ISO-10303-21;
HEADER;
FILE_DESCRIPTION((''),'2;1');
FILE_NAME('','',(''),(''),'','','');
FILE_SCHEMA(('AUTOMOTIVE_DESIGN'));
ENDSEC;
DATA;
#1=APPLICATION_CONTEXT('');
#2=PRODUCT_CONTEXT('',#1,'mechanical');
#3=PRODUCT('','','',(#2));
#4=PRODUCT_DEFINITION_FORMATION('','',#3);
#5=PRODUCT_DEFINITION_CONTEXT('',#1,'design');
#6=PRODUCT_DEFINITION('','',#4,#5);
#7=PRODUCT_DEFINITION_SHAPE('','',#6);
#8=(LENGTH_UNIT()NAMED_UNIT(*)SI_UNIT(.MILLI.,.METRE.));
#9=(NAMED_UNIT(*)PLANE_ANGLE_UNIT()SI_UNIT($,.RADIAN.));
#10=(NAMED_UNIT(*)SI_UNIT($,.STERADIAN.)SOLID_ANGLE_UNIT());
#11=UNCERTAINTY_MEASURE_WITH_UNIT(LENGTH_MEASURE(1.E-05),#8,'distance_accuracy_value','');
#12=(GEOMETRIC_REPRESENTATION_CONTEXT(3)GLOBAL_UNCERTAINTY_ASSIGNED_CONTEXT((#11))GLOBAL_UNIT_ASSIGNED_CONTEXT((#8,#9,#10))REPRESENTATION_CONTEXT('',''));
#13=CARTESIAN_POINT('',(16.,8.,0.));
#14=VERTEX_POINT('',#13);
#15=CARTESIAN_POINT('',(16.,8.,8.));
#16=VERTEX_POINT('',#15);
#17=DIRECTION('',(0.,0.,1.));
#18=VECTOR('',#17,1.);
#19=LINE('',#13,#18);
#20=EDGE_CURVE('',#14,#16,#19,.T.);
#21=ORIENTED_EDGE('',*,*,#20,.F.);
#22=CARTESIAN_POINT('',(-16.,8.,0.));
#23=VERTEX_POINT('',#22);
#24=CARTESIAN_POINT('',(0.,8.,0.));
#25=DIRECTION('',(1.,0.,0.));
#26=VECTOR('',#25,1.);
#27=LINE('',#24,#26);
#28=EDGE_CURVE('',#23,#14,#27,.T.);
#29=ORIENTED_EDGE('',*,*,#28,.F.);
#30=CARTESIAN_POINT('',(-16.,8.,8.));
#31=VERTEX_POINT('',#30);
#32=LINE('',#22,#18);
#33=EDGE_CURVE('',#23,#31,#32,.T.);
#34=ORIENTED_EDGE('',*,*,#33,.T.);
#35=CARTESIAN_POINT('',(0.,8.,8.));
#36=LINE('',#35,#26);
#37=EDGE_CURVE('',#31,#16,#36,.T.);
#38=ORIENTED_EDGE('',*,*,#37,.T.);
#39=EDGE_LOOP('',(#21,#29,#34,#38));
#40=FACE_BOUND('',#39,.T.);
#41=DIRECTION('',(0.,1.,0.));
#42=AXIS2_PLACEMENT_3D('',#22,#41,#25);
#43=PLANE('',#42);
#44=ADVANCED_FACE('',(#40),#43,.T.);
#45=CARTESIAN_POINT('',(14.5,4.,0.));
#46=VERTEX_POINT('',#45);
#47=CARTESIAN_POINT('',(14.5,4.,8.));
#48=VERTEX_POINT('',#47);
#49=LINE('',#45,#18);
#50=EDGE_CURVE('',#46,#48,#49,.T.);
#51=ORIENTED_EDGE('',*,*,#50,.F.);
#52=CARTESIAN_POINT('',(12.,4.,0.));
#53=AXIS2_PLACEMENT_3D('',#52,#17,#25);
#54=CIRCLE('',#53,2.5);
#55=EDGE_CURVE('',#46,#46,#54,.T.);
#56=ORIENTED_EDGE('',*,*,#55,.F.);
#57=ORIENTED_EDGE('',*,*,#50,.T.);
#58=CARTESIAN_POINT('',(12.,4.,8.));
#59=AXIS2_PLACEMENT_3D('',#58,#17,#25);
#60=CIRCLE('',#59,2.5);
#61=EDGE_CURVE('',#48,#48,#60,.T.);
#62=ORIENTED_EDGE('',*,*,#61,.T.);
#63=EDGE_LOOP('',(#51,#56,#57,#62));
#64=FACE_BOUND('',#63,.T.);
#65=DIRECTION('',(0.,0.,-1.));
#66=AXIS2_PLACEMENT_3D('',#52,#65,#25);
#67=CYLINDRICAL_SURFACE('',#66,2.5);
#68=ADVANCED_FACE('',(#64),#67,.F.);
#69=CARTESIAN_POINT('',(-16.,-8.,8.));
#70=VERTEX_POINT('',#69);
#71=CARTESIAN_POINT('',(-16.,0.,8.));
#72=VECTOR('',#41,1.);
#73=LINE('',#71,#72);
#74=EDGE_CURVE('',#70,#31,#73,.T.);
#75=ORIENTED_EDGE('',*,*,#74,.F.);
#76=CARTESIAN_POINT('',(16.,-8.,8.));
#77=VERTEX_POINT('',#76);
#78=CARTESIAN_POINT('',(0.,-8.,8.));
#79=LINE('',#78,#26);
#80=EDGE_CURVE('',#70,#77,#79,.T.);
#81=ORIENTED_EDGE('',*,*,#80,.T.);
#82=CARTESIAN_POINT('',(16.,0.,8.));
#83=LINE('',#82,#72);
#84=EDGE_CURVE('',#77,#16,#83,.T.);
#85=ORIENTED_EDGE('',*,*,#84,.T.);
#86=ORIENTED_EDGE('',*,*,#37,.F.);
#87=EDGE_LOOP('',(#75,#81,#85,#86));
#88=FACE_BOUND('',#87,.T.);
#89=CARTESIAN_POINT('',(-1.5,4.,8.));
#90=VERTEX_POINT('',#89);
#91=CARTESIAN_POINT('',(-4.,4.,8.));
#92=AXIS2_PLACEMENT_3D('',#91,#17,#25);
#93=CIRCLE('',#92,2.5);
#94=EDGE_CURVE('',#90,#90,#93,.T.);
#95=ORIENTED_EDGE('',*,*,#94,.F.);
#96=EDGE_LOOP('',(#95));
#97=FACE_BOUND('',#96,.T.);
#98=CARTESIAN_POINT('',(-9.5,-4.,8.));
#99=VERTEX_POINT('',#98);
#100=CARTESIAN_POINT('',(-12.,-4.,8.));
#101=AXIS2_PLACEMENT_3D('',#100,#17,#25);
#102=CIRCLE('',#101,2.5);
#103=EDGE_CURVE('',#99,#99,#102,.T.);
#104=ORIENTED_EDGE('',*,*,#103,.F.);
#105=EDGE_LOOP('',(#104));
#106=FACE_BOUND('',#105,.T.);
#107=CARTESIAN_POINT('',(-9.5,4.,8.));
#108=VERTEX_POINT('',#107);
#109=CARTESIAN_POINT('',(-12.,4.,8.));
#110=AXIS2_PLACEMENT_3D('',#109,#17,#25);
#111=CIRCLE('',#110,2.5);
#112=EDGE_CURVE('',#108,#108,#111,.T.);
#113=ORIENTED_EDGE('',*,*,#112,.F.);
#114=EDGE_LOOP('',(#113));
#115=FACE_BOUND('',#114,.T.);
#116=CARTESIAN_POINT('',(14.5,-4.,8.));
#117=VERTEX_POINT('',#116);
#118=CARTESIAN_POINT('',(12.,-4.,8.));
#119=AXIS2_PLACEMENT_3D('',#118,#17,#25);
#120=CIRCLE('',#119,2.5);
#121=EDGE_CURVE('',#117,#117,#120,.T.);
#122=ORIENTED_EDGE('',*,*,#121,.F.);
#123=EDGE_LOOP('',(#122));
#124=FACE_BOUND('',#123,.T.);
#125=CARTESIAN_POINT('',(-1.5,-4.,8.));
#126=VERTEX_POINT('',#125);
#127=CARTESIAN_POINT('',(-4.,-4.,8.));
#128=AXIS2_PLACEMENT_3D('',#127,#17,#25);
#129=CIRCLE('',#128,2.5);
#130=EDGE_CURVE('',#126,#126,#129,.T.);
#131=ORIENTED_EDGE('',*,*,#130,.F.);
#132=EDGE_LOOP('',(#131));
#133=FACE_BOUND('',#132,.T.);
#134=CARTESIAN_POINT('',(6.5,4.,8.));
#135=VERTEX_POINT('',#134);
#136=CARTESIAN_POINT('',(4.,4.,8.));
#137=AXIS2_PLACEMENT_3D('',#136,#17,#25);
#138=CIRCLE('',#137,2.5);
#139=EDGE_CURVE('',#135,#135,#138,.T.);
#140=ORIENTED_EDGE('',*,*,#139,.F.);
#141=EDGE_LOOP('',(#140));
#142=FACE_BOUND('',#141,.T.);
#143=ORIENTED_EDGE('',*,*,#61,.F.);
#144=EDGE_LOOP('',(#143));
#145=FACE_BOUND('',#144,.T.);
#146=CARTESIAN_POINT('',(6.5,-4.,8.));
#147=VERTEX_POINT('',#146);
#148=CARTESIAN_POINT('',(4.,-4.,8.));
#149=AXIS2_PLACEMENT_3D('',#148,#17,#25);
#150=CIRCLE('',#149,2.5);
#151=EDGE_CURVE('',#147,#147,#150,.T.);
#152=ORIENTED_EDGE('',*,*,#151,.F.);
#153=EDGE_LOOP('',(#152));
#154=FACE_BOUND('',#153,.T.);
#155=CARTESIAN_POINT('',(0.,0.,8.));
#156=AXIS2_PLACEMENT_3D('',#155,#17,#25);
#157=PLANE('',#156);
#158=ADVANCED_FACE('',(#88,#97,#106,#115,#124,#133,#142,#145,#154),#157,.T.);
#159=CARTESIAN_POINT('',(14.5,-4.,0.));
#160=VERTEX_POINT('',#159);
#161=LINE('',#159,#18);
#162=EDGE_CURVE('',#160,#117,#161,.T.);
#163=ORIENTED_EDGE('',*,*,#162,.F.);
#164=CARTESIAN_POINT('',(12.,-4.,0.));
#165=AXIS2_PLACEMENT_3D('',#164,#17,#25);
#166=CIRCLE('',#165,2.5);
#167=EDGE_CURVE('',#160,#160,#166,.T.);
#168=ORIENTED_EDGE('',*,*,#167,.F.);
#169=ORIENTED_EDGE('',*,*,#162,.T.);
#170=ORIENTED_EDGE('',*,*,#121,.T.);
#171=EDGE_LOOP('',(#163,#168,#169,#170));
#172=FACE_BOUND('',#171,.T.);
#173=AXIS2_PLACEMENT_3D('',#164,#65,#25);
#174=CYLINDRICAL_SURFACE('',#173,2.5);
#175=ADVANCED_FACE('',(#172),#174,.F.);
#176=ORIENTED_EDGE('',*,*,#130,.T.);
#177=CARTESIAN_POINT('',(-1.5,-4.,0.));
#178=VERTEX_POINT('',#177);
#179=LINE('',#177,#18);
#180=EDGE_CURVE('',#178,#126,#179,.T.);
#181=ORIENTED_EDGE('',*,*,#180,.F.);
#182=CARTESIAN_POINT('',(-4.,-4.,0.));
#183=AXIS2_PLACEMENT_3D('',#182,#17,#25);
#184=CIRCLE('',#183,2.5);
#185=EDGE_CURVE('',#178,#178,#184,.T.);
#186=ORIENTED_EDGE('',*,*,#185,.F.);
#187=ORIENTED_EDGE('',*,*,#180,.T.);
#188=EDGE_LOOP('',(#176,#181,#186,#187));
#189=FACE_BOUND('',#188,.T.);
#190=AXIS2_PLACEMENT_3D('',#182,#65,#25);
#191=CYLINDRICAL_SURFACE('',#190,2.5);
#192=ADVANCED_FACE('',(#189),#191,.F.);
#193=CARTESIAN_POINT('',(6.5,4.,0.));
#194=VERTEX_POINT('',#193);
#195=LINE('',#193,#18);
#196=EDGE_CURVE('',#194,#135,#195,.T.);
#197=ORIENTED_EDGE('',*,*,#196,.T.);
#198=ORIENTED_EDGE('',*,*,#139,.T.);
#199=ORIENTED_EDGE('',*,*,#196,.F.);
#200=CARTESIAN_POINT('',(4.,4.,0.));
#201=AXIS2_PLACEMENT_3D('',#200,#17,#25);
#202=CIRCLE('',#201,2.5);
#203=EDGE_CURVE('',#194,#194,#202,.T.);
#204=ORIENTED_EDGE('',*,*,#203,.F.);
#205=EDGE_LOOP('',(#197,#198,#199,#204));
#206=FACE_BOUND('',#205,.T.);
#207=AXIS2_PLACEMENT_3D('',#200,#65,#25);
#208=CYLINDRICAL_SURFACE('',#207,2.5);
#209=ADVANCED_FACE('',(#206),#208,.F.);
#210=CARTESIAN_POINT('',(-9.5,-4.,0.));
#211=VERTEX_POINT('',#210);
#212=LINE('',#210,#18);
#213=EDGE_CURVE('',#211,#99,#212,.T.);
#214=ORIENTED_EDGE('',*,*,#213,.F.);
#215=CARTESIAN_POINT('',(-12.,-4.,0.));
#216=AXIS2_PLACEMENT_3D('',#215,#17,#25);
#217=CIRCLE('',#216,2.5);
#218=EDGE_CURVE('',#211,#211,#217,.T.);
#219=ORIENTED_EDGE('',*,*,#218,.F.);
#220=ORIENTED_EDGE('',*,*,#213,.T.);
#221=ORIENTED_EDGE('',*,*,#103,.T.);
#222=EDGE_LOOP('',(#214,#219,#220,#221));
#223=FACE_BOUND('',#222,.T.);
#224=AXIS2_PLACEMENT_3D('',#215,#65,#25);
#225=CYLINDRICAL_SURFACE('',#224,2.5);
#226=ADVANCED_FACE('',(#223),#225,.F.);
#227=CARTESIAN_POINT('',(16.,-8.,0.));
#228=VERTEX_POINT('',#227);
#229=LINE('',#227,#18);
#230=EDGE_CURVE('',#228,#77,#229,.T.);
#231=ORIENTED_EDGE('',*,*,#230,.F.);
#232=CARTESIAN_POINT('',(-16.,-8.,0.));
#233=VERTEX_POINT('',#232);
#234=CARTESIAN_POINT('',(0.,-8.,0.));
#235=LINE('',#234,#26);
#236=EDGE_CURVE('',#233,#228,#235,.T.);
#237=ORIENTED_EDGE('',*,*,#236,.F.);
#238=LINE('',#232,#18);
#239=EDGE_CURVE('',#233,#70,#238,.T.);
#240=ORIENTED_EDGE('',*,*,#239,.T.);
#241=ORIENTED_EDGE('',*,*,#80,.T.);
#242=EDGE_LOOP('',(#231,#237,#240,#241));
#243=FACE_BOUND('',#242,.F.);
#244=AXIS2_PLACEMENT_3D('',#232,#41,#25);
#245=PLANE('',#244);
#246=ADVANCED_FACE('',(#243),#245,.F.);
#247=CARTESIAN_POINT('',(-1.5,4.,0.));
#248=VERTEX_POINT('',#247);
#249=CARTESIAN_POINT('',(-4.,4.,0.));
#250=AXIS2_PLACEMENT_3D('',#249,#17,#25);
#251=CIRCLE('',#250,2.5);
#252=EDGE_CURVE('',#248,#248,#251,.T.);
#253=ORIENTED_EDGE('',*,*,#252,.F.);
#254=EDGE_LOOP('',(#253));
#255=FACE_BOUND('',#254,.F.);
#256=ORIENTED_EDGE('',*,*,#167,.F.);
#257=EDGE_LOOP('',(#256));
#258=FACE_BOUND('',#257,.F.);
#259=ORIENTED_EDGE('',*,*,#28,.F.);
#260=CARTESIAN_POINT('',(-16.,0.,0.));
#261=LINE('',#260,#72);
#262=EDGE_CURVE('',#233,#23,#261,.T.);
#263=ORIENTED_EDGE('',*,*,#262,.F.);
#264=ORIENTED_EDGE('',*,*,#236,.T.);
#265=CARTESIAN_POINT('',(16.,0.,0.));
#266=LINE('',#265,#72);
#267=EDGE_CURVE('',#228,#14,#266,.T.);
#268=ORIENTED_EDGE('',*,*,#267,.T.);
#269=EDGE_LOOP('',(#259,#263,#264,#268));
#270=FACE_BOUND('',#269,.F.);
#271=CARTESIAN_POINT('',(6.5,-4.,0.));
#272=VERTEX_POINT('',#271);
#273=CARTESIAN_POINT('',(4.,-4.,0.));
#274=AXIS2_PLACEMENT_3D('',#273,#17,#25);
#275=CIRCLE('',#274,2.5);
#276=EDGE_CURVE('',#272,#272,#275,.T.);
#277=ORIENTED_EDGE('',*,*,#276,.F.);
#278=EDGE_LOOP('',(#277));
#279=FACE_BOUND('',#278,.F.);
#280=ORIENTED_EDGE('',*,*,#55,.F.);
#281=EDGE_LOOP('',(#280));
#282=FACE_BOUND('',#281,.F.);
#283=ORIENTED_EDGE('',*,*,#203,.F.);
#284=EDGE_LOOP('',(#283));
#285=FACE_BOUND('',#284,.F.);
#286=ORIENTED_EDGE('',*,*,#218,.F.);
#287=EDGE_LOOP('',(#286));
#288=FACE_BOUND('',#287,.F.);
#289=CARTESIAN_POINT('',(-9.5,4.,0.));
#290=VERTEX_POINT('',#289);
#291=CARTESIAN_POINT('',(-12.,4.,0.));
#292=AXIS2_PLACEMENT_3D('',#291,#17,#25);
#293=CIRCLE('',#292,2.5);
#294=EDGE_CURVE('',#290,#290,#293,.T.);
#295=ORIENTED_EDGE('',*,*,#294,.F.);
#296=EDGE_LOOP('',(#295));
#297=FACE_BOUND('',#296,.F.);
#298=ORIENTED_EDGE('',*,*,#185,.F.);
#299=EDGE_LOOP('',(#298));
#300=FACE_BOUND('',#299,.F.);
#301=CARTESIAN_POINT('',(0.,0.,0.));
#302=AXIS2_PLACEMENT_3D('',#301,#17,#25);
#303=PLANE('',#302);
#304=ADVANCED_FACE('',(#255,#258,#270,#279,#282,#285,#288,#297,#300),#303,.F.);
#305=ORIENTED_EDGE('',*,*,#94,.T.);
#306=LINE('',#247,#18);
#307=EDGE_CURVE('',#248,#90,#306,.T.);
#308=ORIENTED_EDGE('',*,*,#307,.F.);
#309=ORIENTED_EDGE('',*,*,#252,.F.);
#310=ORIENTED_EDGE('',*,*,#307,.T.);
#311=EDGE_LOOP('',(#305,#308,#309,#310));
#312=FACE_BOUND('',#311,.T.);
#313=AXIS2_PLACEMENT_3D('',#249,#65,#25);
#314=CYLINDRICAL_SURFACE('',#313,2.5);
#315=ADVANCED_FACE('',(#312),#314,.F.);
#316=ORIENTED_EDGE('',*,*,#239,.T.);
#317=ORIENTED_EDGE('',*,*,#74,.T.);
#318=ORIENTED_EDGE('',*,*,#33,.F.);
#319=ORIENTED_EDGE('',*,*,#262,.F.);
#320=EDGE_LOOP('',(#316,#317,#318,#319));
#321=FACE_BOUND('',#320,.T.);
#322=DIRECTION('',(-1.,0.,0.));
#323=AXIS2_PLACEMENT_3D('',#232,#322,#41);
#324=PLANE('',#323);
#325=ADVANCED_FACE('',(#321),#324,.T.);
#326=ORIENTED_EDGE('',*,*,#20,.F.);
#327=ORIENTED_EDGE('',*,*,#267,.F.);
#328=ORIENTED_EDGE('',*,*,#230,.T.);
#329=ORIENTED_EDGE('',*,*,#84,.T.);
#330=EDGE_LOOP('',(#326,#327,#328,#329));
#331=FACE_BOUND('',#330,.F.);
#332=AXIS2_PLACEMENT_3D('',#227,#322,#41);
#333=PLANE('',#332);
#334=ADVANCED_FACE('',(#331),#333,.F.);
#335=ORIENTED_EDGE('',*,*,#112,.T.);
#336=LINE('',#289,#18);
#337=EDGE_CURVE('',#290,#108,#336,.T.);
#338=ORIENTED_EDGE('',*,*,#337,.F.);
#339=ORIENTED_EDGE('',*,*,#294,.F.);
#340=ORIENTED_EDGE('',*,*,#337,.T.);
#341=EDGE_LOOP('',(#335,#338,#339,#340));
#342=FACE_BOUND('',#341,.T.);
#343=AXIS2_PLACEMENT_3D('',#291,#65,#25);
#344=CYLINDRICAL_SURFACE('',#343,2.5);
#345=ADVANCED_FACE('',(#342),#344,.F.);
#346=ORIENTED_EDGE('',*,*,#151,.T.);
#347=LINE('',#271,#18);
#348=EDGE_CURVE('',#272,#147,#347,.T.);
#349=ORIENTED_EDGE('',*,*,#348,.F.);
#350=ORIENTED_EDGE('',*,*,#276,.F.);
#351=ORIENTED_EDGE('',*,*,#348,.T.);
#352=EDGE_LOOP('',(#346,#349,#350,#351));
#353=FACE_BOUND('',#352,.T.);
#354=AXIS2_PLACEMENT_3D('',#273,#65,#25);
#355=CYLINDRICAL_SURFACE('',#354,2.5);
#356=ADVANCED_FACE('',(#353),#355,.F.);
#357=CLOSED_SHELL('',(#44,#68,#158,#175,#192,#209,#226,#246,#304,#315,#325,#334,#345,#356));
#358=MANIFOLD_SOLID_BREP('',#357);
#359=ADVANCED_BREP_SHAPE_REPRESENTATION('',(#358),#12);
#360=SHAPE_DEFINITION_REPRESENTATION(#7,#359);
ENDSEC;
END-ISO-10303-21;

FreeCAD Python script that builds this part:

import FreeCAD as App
import Part
import Sketcher
Q = App.Units.Quantity


def add_polygon(sketch, points):
    """Adds a closed chain of lines whose ends are joined by coincident constraints."""
    first, n = sketch.GeometryCount, len(points)
    for a, b in zip(points, points[1:] + points[:1]):
        sketch.addGeometry(Part.LineSegment(App.Vector(*a, 0), App.Vector(*b, 0)), False)
    for i in range(n):
        sketch.addConstraint(Sketcher.Constraint("Coincident", first + i, 2, first + (i + 1) % n, 1))

doc = App.newDocument("Part")
body = doc.addObject("PartDesign::Body", "Body")

# Sketch on XY plane
sketch1 = doc.addObject("Sketcher::SketchObject", "Sketch")
body.addObject(sketch1)
sketch1.AttachmentSupport = (doc.XY_Plane, [""])
sketch1.MapMode = "FlatFace"
add_polygon(sketch1, [(-16, 8), (-16, -8), (16, -8), (16, 8)])  # lines 0-3
sketch1.addGeometry(Part.Circle(App.Vector(-12, -4, 0), App.Vector(0, 0, 1), 2.5), False)  # 4
sketch1.addGeometry(Part.Circle(App.Vector(-4, -4, 0), App.Vector(0, 0, 1), 2.5), False)  # 5
sketch1.addGeometry(Part.Circle(App.Vector(4, -4, 0), App.Vector(0, 0, 1), 2.5), False)  # 6
sketch1.addGeometry(Part.Circle(App.Vector(12, -4, 0), App.Vector(0, 0, 1), 2.5), False)  # 7
sketch1.addGeometry(Part.Circle(App.Vector(-12, 4, 0), App.Vector(0, 0, 1), 2.5), False)  # 8
sketch1.addGeometry(Part.Circle(App.Vector(-4, 4, 0), App.Vector(0, 0, 1), 2.5), False)  # 9
sketch1.addGeometry(Part.Circle(App.Vector(4, 4, 0), App.Vector(0, 0, 1), 2.5), False)  # 10
sketch1.addGeometry(Part.Circle(App.Vector(12, 4, 0), App.Vector(0, 0, 1), 2.5), False)  # 11
sketch1.addConstraint([
    Sketcher.Constraint("Vertical", 0),
    Sketcher.Constraint("Horizontal", 1),
    Sketcher.Constraint("Vertical", 2),
    Sketcher.Constraint("Horizontal", 3),
    Sketcher.Constraint("Equal", 4, 5),
    Sketcher.Constraint("Equal", 5, 6),
    Sketcher.Constraint("Equal", 6, 7),
    Sketcher.Constraint("Equal", 7, 8),
    Sketcher.Constraint("Equal", 8, 9),
    Sketcher.Constraint("Equal", 9, 10),
    Sketcher.Constraint("Equal", 10, 11),
    Sketcher.Constraint("Symmetric", 7, 3, 8, 3, -1, 1),
    Sketcher.Constraint("Symmetric", 6, 3, 9, 3, -1, 1),
    Sketcher.Constraint("Symmetric", 5, 3, 10, 3, -1, 1),
    Sketcher.Constraint("Symmetric", 4, 3, 11, 3, -1, 1),
    Sketcher.Constraint("Symmetric", 0, 2, 2, 2, -1, 1),
    Sketcher.Constraint("Symmetric", 5, 3, 6, 3, -2),
    Sketcher.Constraint("Symmetric", 4, 3, 7, 3, -2),
    Sketcher.Constraint("Horizontal", 4, 3, 5, 3),
    Sketcher.Constraint("Diameter", 4, Q("5 mm")),
    Sketcher.Constraint("DistanceX", 1, 1, 1, 2, Q("32 mm")),
    Sketcher.Constraint("DistanceY", 0, 2, 0, 1, Q("16 mm")),
    Sketcher.Constraint("DistanceX", 4, 3, -1, 1, Q("12 mm")),
    Sketcher.Constraint("DistanceY", 4, 3, -1, 1, Q("4 mm")),
    Sketcher.Constraint("DistanceX", 5, 3, -1, 1, Q("4 mm")),
])
pad1 = doc.addObject("PartDesign::Pad", "Pad")
body.addObject(pad1)
pad1.Profile = sketch1
pad1.Length = 8

doc.recompute()
